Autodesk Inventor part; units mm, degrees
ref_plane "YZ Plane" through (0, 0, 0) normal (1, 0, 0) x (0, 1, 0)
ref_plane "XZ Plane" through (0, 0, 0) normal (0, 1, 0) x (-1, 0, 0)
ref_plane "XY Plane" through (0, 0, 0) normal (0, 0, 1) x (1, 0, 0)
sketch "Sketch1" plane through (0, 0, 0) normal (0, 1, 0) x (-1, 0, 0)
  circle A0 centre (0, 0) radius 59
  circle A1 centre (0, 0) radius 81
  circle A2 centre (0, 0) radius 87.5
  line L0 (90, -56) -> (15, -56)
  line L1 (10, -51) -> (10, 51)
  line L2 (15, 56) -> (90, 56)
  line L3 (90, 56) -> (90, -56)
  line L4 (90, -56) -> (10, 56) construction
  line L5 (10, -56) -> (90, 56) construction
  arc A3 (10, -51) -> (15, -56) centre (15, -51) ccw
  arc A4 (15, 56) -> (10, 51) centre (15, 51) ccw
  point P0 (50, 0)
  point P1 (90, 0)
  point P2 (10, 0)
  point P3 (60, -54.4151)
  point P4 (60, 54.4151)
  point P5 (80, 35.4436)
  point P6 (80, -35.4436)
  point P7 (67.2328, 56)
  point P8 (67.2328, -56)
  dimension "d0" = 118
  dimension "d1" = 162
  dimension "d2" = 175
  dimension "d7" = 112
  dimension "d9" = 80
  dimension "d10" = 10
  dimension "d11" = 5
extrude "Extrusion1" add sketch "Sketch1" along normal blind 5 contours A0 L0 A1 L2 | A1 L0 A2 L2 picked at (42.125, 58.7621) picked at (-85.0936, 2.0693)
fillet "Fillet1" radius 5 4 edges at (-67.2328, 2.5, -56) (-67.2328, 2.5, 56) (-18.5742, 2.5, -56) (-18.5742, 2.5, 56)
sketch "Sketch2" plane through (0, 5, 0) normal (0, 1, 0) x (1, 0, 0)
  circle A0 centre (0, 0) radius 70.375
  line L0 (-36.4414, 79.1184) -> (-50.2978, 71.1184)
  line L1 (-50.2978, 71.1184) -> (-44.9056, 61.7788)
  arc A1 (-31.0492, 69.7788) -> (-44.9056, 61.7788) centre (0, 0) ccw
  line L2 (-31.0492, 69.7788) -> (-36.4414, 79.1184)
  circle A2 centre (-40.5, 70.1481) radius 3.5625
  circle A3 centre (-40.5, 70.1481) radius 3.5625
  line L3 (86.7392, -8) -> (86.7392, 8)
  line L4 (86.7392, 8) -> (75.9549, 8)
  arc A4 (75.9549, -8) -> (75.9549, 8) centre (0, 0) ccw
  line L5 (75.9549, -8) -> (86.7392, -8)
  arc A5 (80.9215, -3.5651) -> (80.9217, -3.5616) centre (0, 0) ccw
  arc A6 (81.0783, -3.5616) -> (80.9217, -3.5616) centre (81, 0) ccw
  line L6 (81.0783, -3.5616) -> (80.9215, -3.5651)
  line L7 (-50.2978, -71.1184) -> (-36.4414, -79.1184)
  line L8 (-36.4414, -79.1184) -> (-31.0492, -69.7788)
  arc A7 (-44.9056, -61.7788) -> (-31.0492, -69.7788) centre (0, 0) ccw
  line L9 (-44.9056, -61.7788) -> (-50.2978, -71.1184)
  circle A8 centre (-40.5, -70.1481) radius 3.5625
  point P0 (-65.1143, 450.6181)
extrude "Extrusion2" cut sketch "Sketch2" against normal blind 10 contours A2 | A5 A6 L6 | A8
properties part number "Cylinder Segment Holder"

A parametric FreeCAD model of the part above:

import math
import FreeCAD as App
import Part
import Sketcher

V = App.Vector
Q = App.Units.Quantity


def edges_at(feature, points):
    """Names of the edges that pass closest to the given points."""
    edges = feature.Shape.Edges
    near = lambda p: min(range(len(edges)), key=lambda i: edges[i].distToShape(Part.Vertex(*p))[0])
    return sorted({f"Edge{near(p) + 1}" for p in points})

doc = App.newDocument("Part")
body = doc.addObject("PartDesign::Body", "Body")

sketch1 = doc.addObject("Sketcher::SketchObject", "Sketch")
body.addObject(sketch1)
sketch1.AttachmentSupport = (doc.XZ_Plane, [""])
sketch1.MapMode = "FlatFace"
sketch1.addGeometry([
    Part.ArcOfCircle(Part.Circle(V(0, 0, 0), V(0, 0, 1), 59), math.radians(-108.349739), math.radians(108.349739)),
    Part.LineSegment(V(-18.574176, 56, 0), V(-67.232804, 56, 0)),
    Part.ArcOfCircle(Part.Circle(V(0, 0, 0), V(0, 0, 1), 87.5), math.radians(-140.208181), math.radians(140.208181)),
    Part.LineSegment(V(-67.232804, -56, 0), V(-18.574176, -56, 0)),
], False)
sketch1.addConstraint([
    Sketcher.Constraint("Coincident", 0, 2, 1, 1),
    Sketcher.Constraint("Coincident", 1, 2, 2, 2),
    Sketcher.Constraint("Coincident", 2, 1, 3, 1),
    Sketcher.Constraint("Coincident", 3, 2, 0, 1),
    Sketcher.Constraint("Horizontal", 1),
    Sketcher.Constraint("Horizontal", 3),
    Sketcher.Constraint("Coincident", 0, 3, -1, 1),
    Sketcher.Constraint("Coincident", 2, 3, -1, 1),
    Sketcher.Constraint("Vertical", 1, 2, 2, 1),
    Sketcher.Constraint("Radius", 0, Q("59 mm")),
    Sketcher.Constraint("Radius", 2, Q("87.5 mm")),
    Sketcher.Constraint("DistanceY", 2, 1, 1, 2, Q("112 mm")),
])
pad1 = doc.addObject("PartDesign::Pad", "Pad")
body.addObject(pad1)
pad1.Profile = sketch1
pad1.Length = 5
pad1.Reversed = True
doc.recompute()

fillet = doc.addObject("PartDesign::Fillet", "Fillet")
body.addObject(fillet)
fillet.Base = (pad1, edges_at(pad1, [
    (-67.233, 2.5, -56),
    (-67.233, 2.5, 56),
    (-18.574, 2.5, -56),
    (-18.574, 2.5, 56),
]))
fillet.Radius = 5

sketch2 = doc.addObject("Sketcher::SketchObject", "Sketch001")
body.addObject(sketch2)
sketch2.AttachmentSupport = (doc.XZ_Plane, [""])
sketch2.MapMode = "FlatFace"
sketch2.AttachmentOffset = App.Placement(V(0, 0, -5), App.Rotation())
sketch2.addGeometry([
    Part.Circle(V(-40.5, -70.1481, 0), V(0, 0, 1), 3.5625),
    Part.ArcOfCircle(Part.Circle(V(80.988575, 3.567177, 0), V(0, 0, 1), 0.067107), math.radians(-178.226256), math.radians(-175.232767)),
    Part.LineSegment(V(80.9215, 3.5651, 0), V(81.0783, 3.5616, 0)),
    Part.ArcOfCircle(Part.Circle(V(81, 0, 0), V(0, 0, 1), 3.562461), math.radians(91.259416), math.radians(448.740584)),
    Part.Circle(V(-40.5, 70.1481, 0), V(0, 0, 1), 3.5625),
], False)
sketch2.addConstraint([
    Sketcher.Constraint("Coincident", 1, 1, 2, 1),
    Sketcher.Constraint("Tangent", 2, 2, 3, 2),
    Sketcher.Constraint("Coincident", 3, 1, 1, 2),
    Sketcher.Constraint("Equal", 0, 3),
    Sketcher.Constraint("Equal", 3, 4),
    Sketcher.Constraint("Symmetric", 0, 3, 4, 3, -1),
    Sketcher.Constraint("PointOnObject", 3, 3, -1),
    Sketcher.Constraint("Horizontal", 2, 2, 3, 1),
    Sketcher.Constraint("Diameter", 0, Q("7.125 mm")),
    Sketcher.Constraint("DistanceX", -1, 1, 3, 3, Q("81 mm")),
    Sketcher.Constraint("Radius", 1, Q("0.067 mm")),
    Sketcher.Constraint("DistanceX", 0, 3, -1, 1, Q("40.5 mm")),
    Sketcher.Constraint("DistanceY", 0, 3, -1, 1, Q("70.148 mm")),
    Sketcher.Constraint("DistanceY", -1, 1, 1, 1, Q("3.565 mm")),
    Sketcher.Constraint("DistanceY", 1, 3, 4, 3, Q("66.581 mm")),
])
pocket1 = doc.addObject("PartDesign::Pocket", "Pocket")
body.addObject(pocket1)
pocket1.Profile = sketch2
pocket1.Length = 10
pocket1.Reversed = True

doc.recompute()
